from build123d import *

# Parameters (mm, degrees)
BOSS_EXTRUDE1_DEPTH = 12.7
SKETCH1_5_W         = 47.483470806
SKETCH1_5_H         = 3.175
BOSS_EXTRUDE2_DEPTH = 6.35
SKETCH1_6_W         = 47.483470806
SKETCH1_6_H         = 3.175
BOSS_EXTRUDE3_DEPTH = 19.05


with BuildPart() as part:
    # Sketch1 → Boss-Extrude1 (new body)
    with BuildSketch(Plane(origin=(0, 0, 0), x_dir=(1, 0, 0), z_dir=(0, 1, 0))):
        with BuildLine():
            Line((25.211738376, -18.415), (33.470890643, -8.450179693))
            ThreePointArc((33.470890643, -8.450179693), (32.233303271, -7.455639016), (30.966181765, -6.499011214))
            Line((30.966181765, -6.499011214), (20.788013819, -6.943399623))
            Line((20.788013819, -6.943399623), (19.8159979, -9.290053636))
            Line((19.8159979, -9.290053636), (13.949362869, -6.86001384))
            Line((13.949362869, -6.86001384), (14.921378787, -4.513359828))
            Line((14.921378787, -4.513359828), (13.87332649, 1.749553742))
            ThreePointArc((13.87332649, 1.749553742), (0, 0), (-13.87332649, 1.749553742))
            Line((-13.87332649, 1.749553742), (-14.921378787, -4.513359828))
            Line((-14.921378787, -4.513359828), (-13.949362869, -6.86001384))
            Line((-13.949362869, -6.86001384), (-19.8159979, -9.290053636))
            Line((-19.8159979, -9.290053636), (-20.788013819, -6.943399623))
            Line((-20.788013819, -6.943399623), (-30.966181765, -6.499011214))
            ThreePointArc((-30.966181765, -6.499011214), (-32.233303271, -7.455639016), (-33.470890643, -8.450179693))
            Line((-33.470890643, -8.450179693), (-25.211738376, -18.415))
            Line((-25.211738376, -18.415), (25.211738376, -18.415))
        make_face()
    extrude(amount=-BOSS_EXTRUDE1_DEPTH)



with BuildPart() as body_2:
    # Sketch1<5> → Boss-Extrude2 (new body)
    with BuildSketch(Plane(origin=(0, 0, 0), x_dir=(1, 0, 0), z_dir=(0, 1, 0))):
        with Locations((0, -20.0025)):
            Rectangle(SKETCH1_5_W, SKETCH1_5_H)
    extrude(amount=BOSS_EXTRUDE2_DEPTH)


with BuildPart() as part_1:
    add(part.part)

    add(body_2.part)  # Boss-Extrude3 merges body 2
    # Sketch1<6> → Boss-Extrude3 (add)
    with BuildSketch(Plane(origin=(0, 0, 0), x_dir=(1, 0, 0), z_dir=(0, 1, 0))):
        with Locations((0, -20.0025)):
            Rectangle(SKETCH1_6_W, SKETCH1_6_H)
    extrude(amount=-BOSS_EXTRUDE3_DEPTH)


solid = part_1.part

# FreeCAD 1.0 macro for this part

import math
import FreeCAD as App
import Part
import Sketcher

V = App.Vector
Q = App.Units.Quantity

doc = App.newDocument("Part")
params = doc.addObject("Spreadsheet::Sheet", "Params")
for row, (alias, value) in enumerate([
    ("sketch1_radius", "2.2 in"),
    ("sketch1_radius2", "2.065 in"),
    ("sketch1_length", "0.1 in"),
    ("sketch1_length2", "0.25 in"),
    ("pad1_length", "0.5 in"),
    ("sketch2_height", "0.125 in"),
    ("pad2_length", "0.25 in"),
    ("sketch3_height", "0.125 in"),
    ("pad3_length", "0.75 in"),
], start=1):
    params.set(f"A{row}", alias)
    params.set(f"B{row}", "=" + value)
    params.setAlias(f"B{row}", alias)

body = doc.addObject("PartDesign::Body", "Body")

sketch1 = body.newObject("Sketcher::SketchObject", "Sketch")
sketch1.AttachmentSupport = (doc.getObject("XZ_Plane"), [""])
sketch1.MapMode = "FlatFace"
sketch1.addGeometry(Part.LineSegment(V(25.2, 18.4, 0), V(33.5, 8.5, 0)), False)
sketch1.addGeometry(Part.ArcOfCircle(Part.Circle(V(0, 48.8, 0), V(0, 0, 1), 52.5), math.radians(-53.82), math.radians(-50.35)), False)
sketch1.addGeometry(Part.LineSegment(V(31, 6.5, 0), V(20.8, 6.9, 0)), False)
sketch1.addGeometry(Part.LineSegment(V(20.8, 6.9, 0), V(19.8, 9.3, 0)), False)
sketch1.addGeometry(Part.LineSegment(V(19.8, 9.3, 0), V(13.9, 6.9, 0)), False)
sketch1.addGeometry(Part.LineSegment(V(13.9, 6.9, 0), V(14.9, 4.5, 0)), False)
sketch1.addGeometry(Part.LineSegment(V(14.9, 4.5, 0), V(13.9, -1.7, 0)), False)
sketch1.addGeometry(Part.ArcOfCircle(Part.Circle(V(0, -55.9, 0), V(0, 0, 1), 55.9), math.radians(76), math.radians(104)), False)
sketch1.addGeometry(Part.LineSegment(V(-13.9, -1.7, 0), V(-14.9, 4.5, 0)), False)
sketch1.addGeometry(Part.LineSegment(V(-14.9, 4.5, 0), V(-13.9, 6.9, 0)), False)
sketch1.addGeometry(Part.LineSegment(V(-13.9, 6.9, 0), V(-19.8, 9.3, 0)), False)
sketch1.addGeometry(Part.LineSegment(V(-19.8, 9.3, 0), V(-20.8, 6.9, 0)), False)
sketch1.addGeometry(Part.LineSegment(V(-20.8, 6.9, 0), V(-31, 6.5, 0)), False)
sketch1.addGeometry(Part.ArcOfCircle(Part.Circle(V(0, 48.8, 0), V(0, 0, 1), 52.5), math.radians(-129.65), math.radians(-126.18)), False)
sketch1.addGeometry(Part.LineSegment(V(-33.5, 8.5, 0), V(-25.2, 18.4, 0)), False)
sketch1.addGeometry(Part.LineSegment(V(-25.2, 18.4, 0), V(25.2, 18.4, 0)), False)
sketch1.addConstraint(Sketcher.Constraint("Coincident", 0, 2, 1, 2))
sketch1.addConstraint(Sketcher.Constraint("Coincident", 1, 1, 2, 1))
sketch1.addConstraint(Sketcher.Constraint("Coincident", 2, 2, 3, 1))
sketch1.addConstraint(Sketcher.Constraint("Coincident", 3, 2, 4, 1))
sketch1.addConstraint(Sketcher.Constraint("Coincident", 4, 2, 5, 1))
sketch1.addConstraint(Sketcher.Constraint("Coincident", 5, 2, 6, 1))
sketch1.addConstraint(Sketcher.Constraint("Coincident", 6, 2, 7, 1))
sketch1.addConstraint(Sketcher.Constraint("Coincident", 7, 2, 8, 1))
sketch1.addConstraint(Sketcher.Constraint("Coincident", 8, 2, 9, 1))
sketch1.addConstraint(Sketcher.Constraint("Coincident", 9, 2, 10, 1))
sketch1.addConstraint(Sketcher.Constraint("Coincident", 10, 2, 11, 1))
sketch1.addConstraint(Sketcher.Constraint("Coincident", 11, 2, 12, 1))
sketch1.addConstraint(Sketcher.Constraint("Coincident", 12, 2, 13, 2))
sketch1.addConstraint(Sketcher.Constraint("Coincident", 13, 1, 14, 1))
sketch1.addConstraint(Sketcher.Constraint("Coincident", 14, 2, 15, 1))
sketch1.addConstraint(Sketcher.Constraint("Coincident", 15, 2, 0, 1))
sketch1.addConstraint(Sketcher.Constraint("Horizontal", 15))
sketch1.addConstraint(Sketcher.Constraint("Coincident", 13, 3, 1, 3))
sketch1.addConstraint(Sketcher.Constraint("Equal", 1, 13))
sketch1.addConstraint(Sketcher.Constraint("Symmetric", 6, 2, 7, 2, -2))
sketch1.addConstraint(Sketcher.Constraint("Symmetric", 5, 2, 8, 2, -2))
sketch1.addConstraint(Sketcher.Constraint("Symmetric", 4, 2, 9, 2, -2))
sketch1.addConstraint(Sketcher.Constraint("Symmetric", 3, 2, 10, 2, -2))
sketch1.addConstraint(Sketcher.Constraint("Symmetric", 2, 2, 11, 2, -2))
sketch1.addConstraint(Sketcher.Constraint("Symmetric", 1, 1, 12, 2, -2))
sketch1.addConstraint(Sketcher.Constraint("Perpendicular", 3, 4))
sketch1.addConstraint(Sketcher.Constraint("Perpendicular", 4, 5))
sketch1.addConstraint(Sketcher.Constraint("Horizontal", 0, 2, 13, 1))
sketch1.addConstraint(Sketcher.Constraint("Equal", 3, 5))
sketch1.addConstraint(Sketcher.Constraint("Equal", 4, 6))
sketch1.addConstraint(Sketcher.Constraint("Equal", 0, 14))
sketch1.addConstraint(Sketcher.Constraint("Radius", 7, Q("2.2 in")))
sketch1.addConstraint(Sketcher.Constraint("Radius", 1, Q("2.065 in")))
sketch1.addConstraint(Sketcher.Constraint("Distance", 3, Q("0.1 in")))
sketch1.addConstraint(Sketcher.Constraint("DistanceY", 7, 3, -1, 1, Q("2.2 in")))
sketch1.addConstraint(Sketcher.Constraint("Angle", 2, Q("177.5 deg")))
sketch1.addConstraint(Sketcher.Constraint("Angle", 3, Q("112.5 deg")))
sketch1.addConstraint(Sketcher.Constraint("Angle", 6, Q("-99.5 deg")))
sketch1.addConstraint(Sketcher.Constraint("Distance", 4, Q("0.25 in")))
sketch1.addConstraint(Sketcher.Constraint("DistanceY", -1, 1, 14, 2, Q("0.725 in")))
sketch1.addConstraint(Sketcher.Constraint("DistanceY", -1, 1, 2, 2, 6.9434))
sketch1.addConstraint(Sketcher.Constraint("DistanceX", 15, 1, 15, 2, 50.423477))
sketch1.addConstraint(Sketcher.Constraint("DistanceY", -1, 1, 1, 3, 48.833429))
sketch1.addConstraint(Sketcher.Constraint("DistanceX", -1, 1, 0, 2, 33.470891))
sketch1.setExpression("Constraints[31]", "Params.sketch1_radius")
sketch1.setExpression("Constraints[32]", "Params.sketch1_radius2")
sketch1.setExpression("Constraints[33]", "Params.sketch1_length")
sketch1.setExpression("Constraints[38]", "Params.sketch1_length2")
pad1 = body.newObject("PartDesign::Pad", "Pad")
pad1.Profile = sketch1
pad1.setExpression("Length", "Params.pad1_length")
body2 = doc.addObject("PartDesign::Body", "Body001")

sketch2 = body2.newObject("Sketcher::SketchObject", "Sketch001")
sketch2.AttachmentSupport = (doc.getObject("XZ_Plane001"), [""])
sketch2.MapMode = "FlatFace"
sketch2.addGeometry(Part.LineSegment(V(-23.7, 18.4, 0), V(-23.7, 21.6, 0)), False)
sketch2.addGeometry(Part.LineSegment(V(-23.7, 21.6, 0), V(23.7, 21.6, 0)), False)
sketch2.addGeometry(Part.LineSegment(V(23.7, 21.6, 0), V(23.7, 18.4, 0)), False)
sketch2.addGeometry(Part.LineSegment(V(23.7, 18.4, 0), V(-23.7, 18.4, 0)), False)
sketch2.addConstraint(Sketcher.Constraint("Coincident", 0, 2, 1, 1))
sketch2.addConstraint(Sketcher.Constraint("Coincident", 1, 2, 2, 1))
sketch2.addConstraint(Sketcher.Constraint("Coincident", 2, 2, 3, 1))
sketch2.addConstraint(Sketcher.Constraint("Coincident", 3, 2, 0, 1))
sketch2.addConstraint(Sketcher.Constraint("Vertical", 0))
sketch2.addConstraint(Sketcher.Constraint("Horizontal", 1))
sketch2.addConstraint(Sketcher.Constraint("Vertical", 2))
sketch2.addConstraint(Sketcher.Constraint("Horizontal", 3))
sketch2.addConstraint(Sketcher.Constraint("DistanceY", 0, 1, 0, 2, Q("0.125 in")))
sketch2.addConstraint(Sketcher.Constraint("DistanceY", -1, 1, 0, 2, Q("0.85 in")))
sketch2.addConstraint(Sketcher.Constraint("DistanceX", 1, 1, 1, 2, 47.483471))
sketch2.addConstraint(Sketcher.Constraint("DistanceX", 0, 2, -1, 1, 23.741735))
sketch2.setExpression("Constraints[8]", "Params.sketch2_height")
pad2 = body2.newObject("PartDesign::Pad", "Pad001")
pad2.Profile = sketch2
pad2.setExpression("Length", "Params.pad2_length")
pad2.Reversed = True
body.AllowCompound = True
doc.recompute()

boolean = body.newObject("PartDesign::Boolean", "Boolean")
boolean.Type = "Fuse"
boolean.addObjects([body2])

sketch3 = body.newObject("Sketcher::SketchObject", "Sketch002")
sketch3.AttachmentSupport = (doc.getObject("XZ_Plane"), [""])
sketch3.MapMode = "FlatFace"
sketch3.addGeometry(Part.LineSegment(V(-23.7, 18.4, 0), V(-23.7, 21.6, 0)), False)
sketch3.addGeometry(Part.LineSegment(V(-23.7, 21.6, 0), V(23.7, 21.6, 0)), False)
sketch3.addGeometry(Part.LineSegment(V(23.7, 21.6, 0), V(23.7, 18.4, 0)), False)
sketch3.addGeometry(Part.LineSegment(V(23.7, 18.4, 0), V(-23.7, 18.4, 0)), False)
sketch3.addConstraint(Sketcher.Constraint("Coincident", 0, 2, 1, 1))
sketch3.addConstraint(Sketcher.Constraint("Coincident", 1, 2, 2, 1))
sketch3.addConstraint(Sketcher.Constraint("Coincident", 2, 2, 3, 1))
sketch3.addConstraint(Sketcher.Constraint("Coincident", 3, 2, 0, 1))
sketch3.addConstraint(Sketcher.Constraint("Vertical", 0))
sketch3.addConstraint(Sketcher.Constraint("Horizontal", 1))
sketch3.addConstraint(Sketcher.Constraint("Vertical", 2))
sketch3.addConstraint(Sketcher.Constraint("Horizontal", 3))
sketch3.addConstraint(Sketcher.Constraint("DistanceY", 0, 1, 0, 2, Q("0.125 in")))
sketch3.addConstraint(Sketcher.Constraint("DistanceY", -1, 1, 0, 2, Q("0.85 in")))
sketch3.addConstraint(Sketcher.Constraint("DistanceX", 1, 1, 1, 2, 47.483471))
sketch3.addConstraint(Sketcher.Constraint("DistanceX", 0, 2, -1, 1, 23.741735))
sketch3.setExpression("Constraints[8]", "Params.sketch3_height")
pad3 = body.newObject("PartDesign::Pad", "Pad002")
pad3.Profile = sketch3
pad3.setExpression("Length", "Params.pad3_length")

doc.recompute()
